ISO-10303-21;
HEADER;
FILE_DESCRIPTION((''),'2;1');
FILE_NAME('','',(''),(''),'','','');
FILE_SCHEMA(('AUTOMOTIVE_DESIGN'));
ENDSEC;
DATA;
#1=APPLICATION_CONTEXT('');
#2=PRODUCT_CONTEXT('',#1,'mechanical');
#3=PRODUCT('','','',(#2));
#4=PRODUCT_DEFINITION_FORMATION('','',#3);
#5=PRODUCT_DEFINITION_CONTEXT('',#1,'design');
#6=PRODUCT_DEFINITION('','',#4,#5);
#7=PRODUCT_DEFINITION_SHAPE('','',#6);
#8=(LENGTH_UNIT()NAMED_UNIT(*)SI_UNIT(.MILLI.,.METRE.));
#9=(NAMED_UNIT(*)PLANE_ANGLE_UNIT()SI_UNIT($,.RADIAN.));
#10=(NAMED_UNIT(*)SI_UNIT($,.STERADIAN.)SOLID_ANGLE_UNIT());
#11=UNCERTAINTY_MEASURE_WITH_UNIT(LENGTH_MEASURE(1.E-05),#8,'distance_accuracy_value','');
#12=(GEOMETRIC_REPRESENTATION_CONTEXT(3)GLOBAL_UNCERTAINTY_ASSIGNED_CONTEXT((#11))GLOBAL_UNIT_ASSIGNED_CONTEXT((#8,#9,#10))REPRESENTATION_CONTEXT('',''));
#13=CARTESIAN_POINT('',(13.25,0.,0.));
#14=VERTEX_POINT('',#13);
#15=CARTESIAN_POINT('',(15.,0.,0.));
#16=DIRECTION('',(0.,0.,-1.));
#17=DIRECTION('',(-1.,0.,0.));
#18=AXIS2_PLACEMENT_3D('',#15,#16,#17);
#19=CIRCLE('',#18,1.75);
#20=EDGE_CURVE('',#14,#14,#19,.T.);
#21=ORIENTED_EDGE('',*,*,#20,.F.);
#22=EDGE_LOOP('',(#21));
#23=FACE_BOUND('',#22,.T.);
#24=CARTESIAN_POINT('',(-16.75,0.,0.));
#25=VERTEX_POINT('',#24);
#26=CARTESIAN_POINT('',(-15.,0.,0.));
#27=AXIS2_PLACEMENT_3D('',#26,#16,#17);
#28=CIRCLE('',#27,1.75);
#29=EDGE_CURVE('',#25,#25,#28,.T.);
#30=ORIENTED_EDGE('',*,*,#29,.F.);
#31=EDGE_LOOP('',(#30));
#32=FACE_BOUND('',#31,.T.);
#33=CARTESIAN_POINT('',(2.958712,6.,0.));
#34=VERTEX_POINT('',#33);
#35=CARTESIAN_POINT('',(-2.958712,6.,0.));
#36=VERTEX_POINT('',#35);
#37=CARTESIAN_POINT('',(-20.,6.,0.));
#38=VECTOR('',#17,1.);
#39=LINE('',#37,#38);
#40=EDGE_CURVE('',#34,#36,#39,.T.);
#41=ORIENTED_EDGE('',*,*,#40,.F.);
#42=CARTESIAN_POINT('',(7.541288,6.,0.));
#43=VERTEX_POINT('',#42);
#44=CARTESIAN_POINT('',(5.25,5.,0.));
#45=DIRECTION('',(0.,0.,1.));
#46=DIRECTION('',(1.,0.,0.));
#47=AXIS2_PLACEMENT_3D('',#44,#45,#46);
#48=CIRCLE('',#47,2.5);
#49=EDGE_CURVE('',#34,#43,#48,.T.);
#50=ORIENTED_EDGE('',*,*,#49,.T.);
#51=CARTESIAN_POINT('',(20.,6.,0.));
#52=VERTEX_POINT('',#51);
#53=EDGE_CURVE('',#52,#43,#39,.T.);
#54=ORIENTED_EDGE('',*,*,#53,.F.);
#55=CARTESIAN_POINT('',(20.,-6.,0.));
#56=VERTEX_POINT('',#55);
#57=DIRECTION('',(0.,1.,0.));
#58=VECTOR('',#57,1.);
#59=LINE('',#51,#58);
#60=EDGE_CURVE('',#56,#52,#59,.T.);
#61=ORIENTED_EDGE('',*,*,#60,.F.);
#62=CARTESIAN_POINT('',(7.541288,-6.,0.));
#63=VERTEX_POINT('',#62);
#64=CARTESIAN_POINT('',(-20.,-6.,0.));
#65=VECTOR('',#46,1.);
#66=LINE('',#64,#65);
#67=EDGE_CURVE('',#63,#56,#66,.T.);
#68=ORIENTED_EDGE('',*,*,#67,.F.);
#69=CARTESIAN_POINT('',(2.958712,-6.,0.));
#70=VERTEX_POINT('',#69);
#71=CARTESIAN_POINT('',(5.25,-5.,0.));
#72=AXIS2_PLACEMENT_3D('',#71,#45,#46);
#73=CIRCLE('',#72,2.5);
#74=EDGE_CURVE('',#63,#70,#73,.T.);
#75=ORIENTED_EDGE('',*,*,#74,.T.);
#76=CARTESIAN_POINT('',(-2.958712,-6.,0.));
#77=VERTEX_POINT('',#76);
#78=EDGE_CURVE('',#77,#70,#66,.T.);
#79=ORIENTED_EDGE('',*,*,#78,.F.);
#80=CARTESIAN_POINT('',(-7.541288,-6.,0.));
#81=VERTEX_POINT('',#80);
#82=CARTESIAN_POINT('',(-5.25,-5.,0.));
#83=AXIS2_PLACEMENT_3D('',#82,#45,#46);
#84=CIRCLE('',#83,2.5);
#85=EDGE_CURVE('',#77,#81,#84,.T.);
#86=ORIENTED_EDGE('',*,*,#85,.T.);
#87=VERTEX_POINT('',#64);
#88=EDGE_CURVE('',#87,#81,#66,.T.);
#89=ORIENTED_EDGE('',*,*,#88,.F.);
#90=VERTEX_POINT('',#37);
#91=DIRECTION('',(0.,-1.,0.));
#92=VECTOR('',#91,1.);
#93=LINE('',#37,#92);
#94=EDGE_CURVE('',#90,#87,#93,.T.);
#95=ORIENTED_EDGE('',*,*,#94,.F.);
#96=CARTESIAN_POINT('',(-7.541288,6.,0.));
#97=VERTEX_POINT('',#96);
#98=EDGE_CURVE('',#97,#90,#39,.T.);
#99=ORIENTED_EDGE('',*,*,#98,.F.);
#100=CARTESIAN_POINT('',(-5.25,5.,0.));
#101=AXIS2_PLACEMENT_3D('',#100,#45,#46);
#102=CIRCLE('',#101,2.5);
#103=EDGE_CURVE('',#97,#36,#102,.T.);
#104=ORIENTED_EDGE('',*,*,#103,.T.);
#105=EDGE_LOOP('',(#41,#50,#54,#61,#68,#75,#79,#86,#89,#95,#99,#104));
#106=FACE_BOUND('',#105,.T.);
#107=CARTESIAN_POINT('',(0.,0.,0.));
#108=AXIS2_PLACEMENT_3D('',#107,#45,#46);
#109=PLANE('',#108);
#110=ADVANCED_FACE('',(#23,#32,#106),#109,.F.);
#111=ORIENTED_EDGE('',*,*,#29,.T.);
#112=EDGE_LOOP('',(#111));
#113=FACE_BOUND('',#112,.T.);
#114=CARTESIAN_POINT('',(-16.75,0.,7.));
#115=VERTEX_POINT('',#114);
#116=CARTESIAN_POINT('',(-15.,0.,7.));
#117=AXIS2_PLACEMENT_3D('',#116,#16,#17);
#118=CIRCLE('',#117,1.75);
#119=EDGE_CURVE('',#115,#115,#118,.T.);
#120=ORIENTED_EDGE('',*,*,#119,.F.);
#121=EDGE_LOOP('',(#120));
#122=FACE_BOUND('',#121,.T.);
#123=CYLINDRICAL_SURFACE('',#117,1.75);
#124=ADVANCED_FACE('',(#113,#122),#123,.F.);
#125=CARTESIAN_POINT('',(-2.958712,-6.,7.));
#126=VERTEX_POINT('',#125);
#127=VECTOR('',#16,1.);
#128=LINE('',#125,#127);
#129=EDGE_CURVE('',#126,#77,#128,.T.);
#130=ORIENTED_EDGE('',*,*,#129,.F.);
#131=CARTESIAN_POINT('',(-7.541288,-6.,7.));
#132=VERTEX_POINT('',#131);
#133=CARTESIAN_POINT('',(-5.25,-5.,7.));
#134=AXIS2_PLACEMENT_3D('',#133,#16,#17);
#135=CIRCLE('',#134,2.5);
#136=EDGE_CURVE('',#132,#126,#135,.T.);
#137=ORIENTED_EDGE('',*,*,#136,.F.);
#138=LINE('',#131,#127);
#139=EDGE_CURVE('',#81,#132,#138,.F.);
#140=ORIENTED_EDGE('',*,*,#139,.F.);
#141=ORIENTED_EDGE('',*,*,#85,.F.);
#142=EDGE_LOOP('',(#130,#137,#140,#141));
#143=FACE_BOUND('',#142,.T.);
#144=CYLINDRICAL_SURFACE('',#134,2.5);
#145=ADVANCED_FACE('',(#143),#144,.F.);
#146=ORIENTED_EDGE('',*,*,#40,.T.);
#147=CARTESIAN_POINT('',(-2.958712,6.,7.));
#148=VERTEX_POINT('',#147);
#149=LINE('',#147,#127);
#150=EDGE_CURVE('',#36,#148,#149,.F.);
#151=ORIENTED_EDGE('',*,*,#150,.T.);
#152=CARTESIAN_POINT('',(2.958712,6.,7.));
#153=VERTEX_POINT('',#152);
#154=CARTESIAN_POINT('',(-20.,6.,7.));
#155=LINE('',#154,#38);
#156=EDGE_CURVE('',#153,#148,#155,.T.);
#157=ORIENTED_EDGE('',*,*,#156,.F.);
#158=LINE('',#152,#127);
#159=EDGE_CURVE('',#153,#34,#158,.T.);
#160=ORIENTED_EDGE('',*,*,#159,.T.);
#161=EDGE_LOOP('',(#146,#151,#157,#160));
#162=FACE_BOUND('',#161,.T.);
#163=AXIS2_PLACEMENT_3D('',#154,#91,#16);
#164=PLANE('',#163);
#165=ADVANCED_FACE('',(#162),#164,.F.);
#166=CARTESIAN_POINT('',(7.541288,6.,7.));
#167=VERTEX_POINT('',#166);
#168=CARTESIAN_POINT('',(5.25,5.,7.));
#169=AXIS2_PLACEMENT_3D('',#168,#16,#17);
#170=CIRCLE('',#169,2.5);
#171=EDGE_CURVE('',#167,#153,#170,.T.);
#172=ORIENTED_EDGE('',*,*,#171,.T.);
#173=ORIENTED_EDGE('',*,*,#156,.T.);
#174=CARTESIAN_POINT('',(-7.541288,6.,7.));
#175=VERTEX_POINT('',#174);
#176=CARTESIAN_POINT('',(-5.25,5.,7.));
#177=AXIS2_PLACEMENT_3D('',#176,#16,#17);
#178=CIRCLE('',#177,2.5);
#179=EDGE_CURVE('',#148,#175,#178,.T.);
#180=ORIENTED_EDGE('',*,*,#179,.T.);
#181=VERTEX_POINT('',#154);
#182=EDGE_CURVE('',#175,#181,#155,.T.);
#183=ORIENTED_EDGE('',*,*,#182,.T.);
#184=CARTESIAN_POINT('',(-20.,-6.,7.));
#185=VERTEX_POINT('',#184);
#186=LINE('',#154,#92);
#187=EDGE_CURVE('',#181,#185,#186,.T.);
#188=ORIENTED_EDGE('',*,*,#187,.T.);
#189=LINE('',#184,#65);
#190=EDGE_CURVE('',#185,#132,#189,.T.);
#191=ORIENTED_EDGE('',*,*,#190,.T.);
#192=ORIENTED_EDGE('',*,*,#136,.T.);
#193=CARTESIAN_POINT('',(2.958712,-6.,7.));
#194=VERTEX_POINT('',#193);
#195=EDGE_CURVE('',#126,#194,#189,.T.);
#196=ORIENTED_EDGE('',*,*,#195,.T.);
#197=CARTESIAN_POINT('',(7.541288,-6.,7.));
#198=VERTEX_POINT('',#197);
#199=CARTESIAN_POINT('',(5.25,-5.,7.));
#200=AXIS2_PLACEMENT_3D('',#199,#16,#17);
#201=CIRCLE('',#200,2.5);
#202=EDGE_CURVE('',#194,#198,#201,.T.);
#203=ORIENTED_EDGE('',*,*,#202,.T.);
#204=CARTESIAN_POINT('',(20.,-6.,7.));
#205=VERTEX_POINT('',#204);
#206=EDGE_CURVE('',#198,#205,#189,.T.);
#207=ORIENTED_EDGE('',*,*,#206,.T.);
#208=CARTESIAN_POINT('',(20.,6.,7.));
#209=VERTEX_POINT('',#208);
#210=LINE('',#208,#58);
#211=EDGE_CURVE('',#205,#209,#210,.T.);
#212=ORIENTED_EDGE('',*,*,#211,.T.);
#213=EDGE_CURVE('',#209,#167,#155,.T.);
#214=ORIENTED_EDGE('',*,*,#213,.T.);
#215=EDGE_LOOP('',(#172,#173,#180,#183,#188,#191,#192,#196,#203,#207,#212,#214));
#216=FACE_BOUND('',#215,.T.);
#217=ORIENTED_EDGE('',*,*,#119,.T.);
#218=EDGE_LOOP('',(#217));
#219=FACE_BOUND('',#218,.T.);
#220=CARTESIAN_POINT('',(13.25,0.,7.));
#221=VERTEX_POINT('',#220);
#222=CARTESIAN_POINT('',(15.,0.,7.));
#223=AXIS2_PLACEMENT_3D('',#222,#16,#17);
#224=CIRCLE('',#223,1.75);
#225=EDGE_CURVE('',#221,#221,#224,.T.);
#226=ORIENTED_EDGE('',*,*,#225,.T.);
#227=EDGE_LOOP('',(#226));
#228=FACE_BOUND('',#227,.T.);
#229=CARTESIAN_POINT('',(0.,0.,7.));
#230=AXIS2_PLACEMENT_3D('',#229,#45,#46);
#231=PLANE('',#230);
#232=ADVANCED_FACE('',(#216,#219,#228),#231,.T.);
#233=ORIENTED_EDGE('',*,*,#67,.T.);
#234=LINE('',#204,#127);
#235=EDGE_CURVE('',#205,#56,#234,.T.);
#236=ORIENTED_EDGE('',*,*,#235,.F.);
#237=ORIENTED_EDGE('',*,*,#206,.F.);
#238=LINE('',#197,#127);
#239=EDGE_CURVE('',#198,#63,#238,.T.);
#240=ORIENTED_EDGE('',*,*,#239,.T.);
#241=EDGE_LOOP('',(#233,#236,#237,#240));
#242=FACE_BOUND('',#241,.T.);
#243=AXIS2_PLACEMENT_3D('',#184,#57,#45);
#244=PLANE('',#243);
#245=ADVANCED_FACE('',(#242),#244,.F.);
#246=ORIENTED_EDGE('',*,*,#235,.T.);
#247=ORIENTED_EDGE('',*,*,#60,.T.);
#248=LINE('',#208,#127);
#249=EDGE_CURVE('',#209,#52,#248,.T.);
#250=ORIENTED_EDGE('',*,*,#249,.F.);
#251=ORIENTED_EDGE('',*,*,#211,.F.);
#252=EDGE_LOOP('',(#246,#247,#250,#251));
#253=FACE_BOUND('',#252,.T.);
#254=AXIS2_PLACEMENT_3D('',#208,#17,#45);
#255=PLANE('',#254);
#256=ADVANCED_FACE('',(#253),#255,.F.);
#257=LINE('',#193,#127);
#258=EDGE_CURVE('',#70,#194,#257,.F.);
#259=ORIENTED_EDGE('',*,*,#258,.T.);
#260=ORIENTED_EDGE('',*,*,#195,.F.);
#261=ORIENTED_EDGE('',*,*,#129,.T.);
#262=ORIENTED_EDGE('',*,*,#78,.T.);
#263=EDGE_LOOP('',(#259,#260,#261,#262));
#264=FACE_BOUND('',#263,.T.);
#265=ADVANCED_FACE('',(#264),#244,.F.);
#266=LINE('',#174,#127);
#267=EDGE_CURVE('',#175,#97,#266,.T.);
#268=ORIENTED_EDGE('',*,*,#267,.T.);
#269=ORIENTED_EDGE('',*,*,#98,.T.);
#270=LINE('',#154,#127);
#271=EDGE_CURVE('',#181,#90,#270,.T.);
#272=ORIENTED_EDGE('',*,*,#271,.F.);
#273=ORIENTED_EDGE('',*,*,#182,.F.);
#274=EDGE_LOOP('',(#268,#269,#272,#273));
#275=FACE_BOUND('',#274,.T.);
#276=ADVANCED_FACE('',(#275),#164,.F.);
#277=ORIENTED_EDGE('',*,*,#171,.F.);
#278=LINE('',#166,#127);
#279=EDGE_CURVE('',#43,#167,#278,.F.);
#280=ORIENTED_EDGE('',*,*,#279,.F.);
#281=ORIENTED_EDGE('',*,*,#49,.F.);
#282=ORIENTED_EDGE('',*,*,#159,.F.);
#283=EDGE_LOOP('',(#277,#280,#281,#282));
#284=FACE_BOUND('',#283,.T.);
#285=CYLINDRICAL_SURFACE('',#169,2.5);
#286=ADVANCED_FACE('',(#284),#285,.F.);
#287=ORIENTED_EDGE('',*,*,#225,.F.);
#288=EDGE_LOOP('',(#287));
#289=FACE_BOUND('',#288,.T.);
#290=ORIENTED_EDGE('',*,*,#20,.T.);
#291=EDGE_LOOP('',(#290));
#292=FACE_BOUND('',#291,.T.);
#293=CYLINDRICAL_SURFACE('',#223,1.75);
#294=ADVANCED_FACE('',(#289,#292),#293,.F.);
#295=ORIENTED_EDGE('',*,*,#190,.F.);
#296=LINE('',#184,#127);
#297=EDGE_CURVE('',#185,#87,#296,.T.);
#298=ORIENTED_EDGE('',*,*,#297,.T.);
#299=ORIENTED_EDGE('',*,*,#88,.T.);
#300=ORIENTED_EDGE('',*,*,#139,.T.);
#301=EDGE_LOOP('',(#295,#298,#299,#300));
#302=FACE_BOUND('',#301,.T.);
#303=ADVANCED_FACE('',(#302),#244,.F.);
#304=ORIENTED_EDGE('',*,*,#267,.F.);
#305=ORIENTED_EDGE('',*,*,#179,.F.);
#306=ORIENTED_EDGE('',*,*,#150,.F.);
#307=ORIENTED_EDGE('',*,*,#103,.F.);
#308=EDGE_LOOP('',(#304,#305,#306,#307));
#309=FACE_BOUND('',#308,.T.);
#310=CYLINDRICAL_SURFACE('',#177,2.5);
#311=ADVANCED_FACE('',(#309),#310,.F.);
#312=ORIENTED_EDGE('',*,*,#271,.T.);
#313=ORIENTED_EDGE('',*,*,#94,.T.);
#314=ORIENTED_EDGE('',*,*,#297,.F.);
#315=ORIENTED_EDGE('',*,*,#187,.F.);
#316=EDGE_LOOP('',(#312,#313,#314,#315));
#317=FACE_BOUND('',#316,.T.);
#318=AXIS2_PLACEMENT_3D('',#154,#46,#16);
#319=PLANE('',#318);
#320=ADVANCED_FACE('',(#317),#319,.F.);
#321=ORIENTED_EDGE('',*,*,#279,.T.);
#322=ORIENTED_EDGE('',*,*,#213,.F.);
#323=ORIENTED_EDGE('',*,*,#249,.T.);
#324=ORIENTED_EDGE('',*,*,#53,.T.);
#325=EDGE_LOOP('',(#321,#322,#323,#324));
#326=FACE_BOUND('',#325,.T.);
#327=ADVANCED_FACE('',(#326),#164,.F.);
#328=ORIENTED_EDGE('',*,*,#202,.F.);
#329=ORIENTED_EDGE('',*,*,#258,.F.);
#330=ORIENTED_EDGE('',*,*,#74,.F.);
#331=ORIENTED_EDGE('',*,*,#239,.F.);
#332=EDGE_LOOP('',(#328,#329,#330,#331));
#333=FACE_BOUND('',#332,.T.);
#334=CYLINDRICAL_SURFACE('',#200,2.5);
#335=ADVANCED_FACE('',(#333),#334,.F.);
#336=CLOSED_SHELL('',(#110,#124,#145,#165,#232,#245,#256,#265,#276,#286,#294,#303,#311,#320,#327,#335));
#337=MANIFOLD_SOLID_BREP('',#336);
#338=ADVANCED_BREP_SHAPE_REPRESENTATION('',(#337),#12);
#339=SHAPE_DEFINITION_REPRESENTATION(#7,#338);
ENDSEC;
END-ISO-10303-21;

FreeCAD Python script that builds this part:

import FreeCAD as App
import Part
import Sketcher
Q = App.Units.Quantity


def add_polygon(sketch, points):
    """Adds a closed chain of lines whose ends are joined by coincident constraints."""
    first, n = sketch.GeometryCount, len(points)
    for a, b in zip(points, points[1:] + points[:1]):
        sketch.addGeometry(Part.LineSegment(App.Vector(*a, 0), App.Vector(*b, 0)), False)
    for i in range(n):
        sketch.addConstraint(Sketcher.Constraint("Coincident", first + i, 2, first + (i + 1) % n, 1))

doc = App.newDocument("Part")
body = doc.addObject("PartDesign::Body", "Body")

# Sketch on XY plane
sketch1 = body.newObject("Sketcher::SketchObject", "Sketch")
sketch1.AttachmentSupport = (doc.getObject("XY_Plane"), [""])
sketch1.MapMode = "FlatFace"
add_polygon(sketch1, [(-20, 6), (-20, -6), (20, -6), (20, 6)])  # lines 0-3
sketch1.addConstraint([
    Sketcher.Constraint("Vertical", 0),
    Sketcher.Constraint("Horizontal", 1),
    Sketcher.Constraint("Vertical", 2),
    Sketcher.Constraint("Horizontal", 3),
    Sketcher.Constraint("Symmetric", 0, 2, 2, 2, -1, 1),
    Sketcher.Constraint("DistanceX", 1, 1, 1, 2, Q("40 mm")),
    Sketcher.Constraint("DistanceY", 0, 2, 0, 1, Q("12 mm")),
])
pad1 = body.newObject("PartDesign::Pad", "Pad")
pad1.Profile = sketch1
pad1.Length = 7

# Sketch on XY plane
sketch2 = body.newObject("Sketcher::SketchObject", "Sketch001")
sketch2.AttachmentSupport = (doc.getObject("XY_Plane"), [""])
sketch2.MapMode = "FlatFace"
sketch2.addGeometry([
    Part.Circle(App.Vector(5.2, 5, 0), App.Vector(0, 0, 1), 2.5),  # 0
    Part.Circle(App.Vector(-5.2, 5, 0), App.Vector(0, 0, 1), 2.5),  # 1
    Part.Circle(App.Vector(5.2, -5, 0), App.Vector(0, 0, 1), 2.5),  # 2
    Part.Circle(App.Vector(-5.2, -5, 0), App.Vector(0, 0, 1), 2.5),  # 3
    Part.Circle(App.Vector(15, 0, 0), App.Vector(0, 0, 1), 1.8),  # 4
    Part.Circle(App.Vector(-15, 0, 0), App.Vector(0, 0, 1), 1.8),  # 5
], False)
sketch2.addConstraint([
    Sketcher.Constraint("Equal", 0, 1),
    Sketcher.Constraint("Equal", 1, 2),
    Sketcher.Constraint("Equal", 2, 3),
    Sketcher.Constraint("Equal", 4, 5),
    Sketcher.Constraint("Symmetric", 1, 3, 2, 3, -1, 1),
    Sketcher.Constraint("Symmetric", 0, 3, 3, 3, -1, 1),
    Sketcher.Constraint("Symmetric", 4, 3, 5, 3, -1, 1),
    Sketcher.Constraint("Symmetric", 0, 3, 1, 3, -2),
    Sketcher.Constraint("PointOnObject", 4, 3, -1),
    Sketcher.Constraint("Diameter", 0, Q("5 mm")),
    Sketcher.Constraint("Diameter", 4, Q("3.5 mm")),
    Sketcher.Constraint("DistanceY", -1, 1, 0, 3, Q("5 mm")),
    Sketcher.Constraint("DistanceX", -1, 1, 4, 3, Q("15 mm")),
    Sketcher.Constraint("DistanceX", 1, 3, 0, 3, Q("10.5 mm")),
])
pocket1 = body.newObject("PartDesign::Pocket", "Pocket")
pocket1.Profile = sketch2
pocket1.Length = 7
pocket1.Reversed = True

doc.recompute()
